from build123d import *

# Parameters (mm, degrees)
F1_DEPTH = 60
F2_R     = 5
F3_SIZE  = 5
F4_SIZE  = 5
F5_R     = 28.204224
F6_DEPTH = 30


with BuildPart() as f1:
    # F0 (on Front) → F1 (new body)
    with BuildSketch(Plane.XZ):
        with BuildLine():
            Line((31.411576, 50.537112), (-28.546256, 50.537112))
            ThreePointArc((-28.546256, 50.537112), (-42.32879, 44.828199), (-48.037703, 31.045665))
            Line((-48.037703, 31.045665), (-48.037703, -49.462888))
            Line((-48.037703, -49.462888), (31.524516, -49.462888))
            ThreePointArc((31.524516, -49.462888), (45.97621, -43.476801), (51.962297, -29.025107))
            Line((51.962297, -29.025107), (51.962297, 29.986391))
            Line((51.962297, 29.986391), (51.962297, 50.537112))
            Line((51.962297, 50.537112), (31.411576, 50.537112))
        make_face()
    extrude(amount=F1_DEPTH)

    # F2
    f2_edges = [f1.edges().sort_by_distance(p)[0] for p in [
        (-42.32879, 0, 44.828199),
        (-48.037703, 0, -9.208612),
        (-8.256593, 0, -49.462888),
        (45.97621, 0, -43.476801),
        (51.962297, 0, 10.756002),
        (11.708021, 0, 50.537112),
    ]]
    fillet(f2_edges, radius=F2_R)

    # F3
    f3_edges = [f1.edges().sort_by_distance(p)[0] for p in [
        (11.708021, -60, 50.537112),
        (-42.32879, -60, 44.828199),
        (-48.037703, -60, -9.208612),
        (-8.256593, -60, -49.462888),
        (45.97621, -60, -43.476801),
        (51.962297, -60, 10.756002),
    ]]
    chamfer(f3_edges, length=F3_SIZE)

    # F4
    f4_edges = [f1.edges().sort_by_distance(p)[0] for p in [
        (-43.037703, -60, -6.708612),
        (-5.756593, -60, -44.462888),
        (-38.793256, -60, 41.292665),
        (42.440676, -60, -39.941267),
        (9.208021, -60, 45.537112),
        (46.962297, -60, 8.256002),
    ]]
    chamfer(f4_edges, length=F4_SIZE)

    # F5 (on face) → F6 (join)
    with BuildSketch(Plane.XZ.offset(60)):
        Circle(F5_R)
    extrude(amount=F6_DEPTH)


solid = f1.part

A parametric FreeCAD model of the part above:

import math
import FreeCAD as App
import Part
import Sketcher
Q = App.Units.Quantity


def edges_at(feature, points):
    """Names of the edges that pass closest to the given points."""
    edges = feature.Shape.Edges
    near = lambda p: min(range(len(edges)), key=lambda i: edges[i].distToShape(Part.Vertex(*p))[0])
    return sorted({f"Edge{near(p) + 1}" for p in points})

doc = App.newDocument("Part")
body = doc.addObject("PartDesign::Body", "Body")

# Sketch on XZ plane
sketch1 = doc.addObject("Sketcher::SketchObject", "Sketch")
body.addObject(sketch1)
sketch1.AttachmentSupport = (doc.XZ_Plane, [""])
sketch1.MapMode = "FlatFace"
sketch1.addGeometry(Part.ArcOfCircle(Part.Circle(App.Vector(-28.546255, 31.045664, 0), App.Vector(0, 0, 1), 19.491448), math.radians(90.000004), math.radians(179.999996)), False)
sketch1.addGeometry(Part.LineSegment(App.Vector(-48.037703, 31.045665, 0), App.Vector(-48.037703, -49.462888, 0)), False)
sketch1.addGeometry(Part.LineSegment(App.Vector(-48.037703, -49.462888, 0), App.Vector(31.524516, -49.462888, 0)), False)
sketch1.addGeometry(Part.ArcOfCircle(Part.Circle(App.Vector(31.524518, -29.025109, 0), App.Vector(0, 0, 1), 20.437779), math.radians(-90.000004), math.radians(0.000004)), False)
sketch1.addGeometry(Part.LineSegment(App.Vector(51.962297, -29.025107, 0), App.Vector(51.962297, 50.537112, 0)), False)
sketch1.addGeometry(Part.LineSegment(App.Vector(51.962297, 50.537112, 0), App.Vector(-28.546256, 50.537112, 0)), False)
sketch1.addConstraint(Sketcher.Constraint("Tangent", 0, 2, 1, 1))
sketch1.addConstraint(Sketcher.Constraint("Coincident", 1, 2, 2, 1))
sketch1.addConstraint(Sketcher.Constraint("Tangent", 2, 2, 3, 1))
sketch1.addConstraint(Sketcher.Constraint("Tangent", 3, 2, 4, 1))
sketch1.addConstraint(Sketcher.Constraint("Coincident", 4, 2, 5, 1))
sketch1.addConstraint(Sketcher.Constraint("Tangent", 5, 2, 0, 1))
sketch1.addConstraint(Sketcher.Constraint("Vertical", 1))
sketch1.addConstraint(Sketcher.Constraint("Horizontal", 2))
sketch1.addConstraint(Sketcher.Constraint("Vertical", 4))
sketch1.addConstraint(Sketcher.Constraint("Horizontal", 5))
sketch1.addConstraint(Sketcher.Constraint("Equal", 5, 1))
sketch1.addConstraint(Sketcher.Constraint("DistanceX", 1, 2, 3, 2, Q("100 mm")))
sketch1.addConstraint(Sketcher.Constraint("Radius", 0, Q("19.491448 mm")))
sketch1.addConstraint(Sketcher.Constraint("Radius", 3, Q("20.437779 mm")))
sketch1.addConstraint(Sketcher.Constraint("DistanceY", 3, 3, -1, 1, Q("29.025109 mm")))
sketch1.addConstraint(Sketcher.Constraint("DistanceX", 0, 3, -1, 1, Q("28.546255 mm")))
pad1 = doc.addObject("PartDesign::Pad", "Pad")
body.addObject(pad1)
pad1.Profile = sketch1
pad1.Length = 60
doc.recompute()

fillet = doc.addObject("PartDesign::Fillet", "Fillet")
body.addObject(fillet)
fillet.Base = (pad1, edges_at(pad1, [
    (-42.329, 0, 44.828),
    (-48.038, 0, -9.209),
    (-8.257, 0, -49.463),
    (45.976, 0, -43.477),
    (51.962, 0, 10.756),
    (11.708, 0, 50.537),
]))
fillet.Radius = 5
doc.recompute()

chamfer = doc.addObject("PartDesign::Chamfer", "Chamfer")
body.addObject(chamfer)
chamfer.Base = (fillet, edges_at(fillet, [
    (11.708, -60, 50.537),
    (-42.329, -60, 44.828),
    (-48.038, -60, -9.209),
    (-8.257, -60, -49.463),
    (45.976, -60, -43.477),
    (51.962, -60, 10.756),
]))
chamfer.Size = 5
doc.recompute()

chamfer2 = doc.addObject("PartDesign::Chamfer", "Chamfer001")
body.addObject(chamfer2)
chamfer2.Base = (chamfer, edges_at(chamfer, [
    (-43.038, -60, -6.709),
    (-5.757, -60, -44.463),
    (-38.793, -60, 41.293),
    (42.441, -60, -39.941),
    (9.208, -60, 45.537),
    (46.962, -60, 8.256),
]))
chamfer2.Size = 5

# Sketch on XZ plane
sketch2 = doc.addObject("Sketcher::SketchObject", "Sketch001")
body.addObject(sketch2)
sketch2.AttachmentSupport = (doc.XZ_Plane, [""])
sketch2.MapMode = "FlatFace"
sketch2.AttachmentOffset = App.Placement(App.Vector(0, 0, 60), App.Rotation())
sketch2.addGeometry(Part.Circle(App.Vector(0, 0, 0), App.Vector(0, 0, 1), 28.204224), False)
sketch2.addConstraint(Sketcher.Constraint("Coincident", 0, 3, -1, 1))
sketch2.addConstraint(Sketcher.Constraint("Diameter", 0, Q("56.408448 mm")))
pad2 = doc.addObject("PartDesign::Pad", "Pad001")
body.addObject(pad2)
pad2.Profile = sketch2
pad2.Length = 30

doc.recompute()
